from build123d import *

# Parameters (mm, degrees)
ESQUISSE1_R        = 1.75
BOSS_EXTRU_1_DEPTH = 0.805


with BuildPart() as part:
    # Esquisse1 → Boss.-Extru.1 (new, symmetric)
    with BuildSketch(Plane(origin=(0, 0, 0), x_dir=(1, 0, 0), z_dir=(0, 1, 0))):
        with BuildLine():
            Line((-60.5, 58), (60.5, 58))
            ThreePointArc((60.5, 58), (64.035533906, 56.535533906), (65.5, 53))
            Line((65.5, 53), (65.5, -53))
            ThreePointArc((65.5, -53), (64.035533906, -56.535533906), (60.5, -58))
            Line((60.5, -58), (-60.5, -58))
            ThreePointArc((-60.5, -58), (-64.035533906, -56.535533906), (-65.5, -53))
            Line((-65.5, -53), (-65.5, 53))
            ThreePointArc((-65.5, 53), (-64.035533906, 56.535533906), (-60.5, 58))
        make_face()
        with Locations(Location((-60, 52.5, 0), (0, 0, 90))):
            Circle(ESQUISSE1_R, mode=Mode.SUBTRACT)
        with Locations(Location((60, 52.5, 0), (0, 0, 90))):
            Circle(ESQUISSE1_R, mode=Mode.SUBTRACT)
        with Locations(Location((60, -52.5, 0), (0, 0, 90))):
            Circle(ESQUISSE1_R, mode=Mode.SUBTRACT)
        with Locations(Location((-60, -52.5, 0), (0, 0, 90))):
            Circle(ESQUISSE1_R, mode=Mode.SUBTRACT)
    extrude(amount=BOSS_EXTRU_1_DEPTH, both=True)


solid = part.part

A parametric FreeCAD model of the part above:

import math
import FreeCAD as App
import Part
import Sketcher

V = App.Vector
Q = App.Units.Quantity

doc = App.newDocument("Part")
params = doc.addObject("Spreadsheet::Sheet", "Params")
for row, (alias, value) in enumerate([
    ("sketch1_radius", "5 mm"),
    ("sketch1_diameter", "3.5 mm"),
    ("sketch1_width", "121 mm"),
    ("sketch1_height", "106 mm"),
    ("pad1_length", "1.61 mm"),
], start=1):
    params.set(f"A{row}", alias)
    params.set(f"B{row}", "=" + value)
    params.setAlias(f"B{row}", alias)

body = doc.addObject("PartDesign::Body", "Body")

sketch1 = body.newObject("Sketcher::SketchObject", "Sketch")
sketch1.AttachmentSupport = (doc.getObject("XZ_Plane"), [""])
sketch1.MapMode = "FlatFace"
sketch1.addGeometry([
    Part.LineSegment(V(60.5, -58, 0), V(-60.5, -58, 0)),
    Part.ArcOfCircle(Part.Circle(V(-60.5, -53, 0), V(0, 0, 1), 5), math.radians(180), math.radians(270)),
    Part.LineSegment(V(-65.5, -53, 0), V(-65.5, 53, 0)),
    Part.ArcOfCircle(Part.Circle(V(-60.5, 53, 0), V(0, 0, 1), 5), math.radians(90), math.radians(180)),
    Part.LineSegment(V(-60.5, 58, 0), V(60.5, 58, 0)),
    Part.ArcOfCircle(Part.Circle(V(60.5, 53, 0), V(0, 0, 1), 5), math.radians(0), math.radians(90)),
    Part.LineSegment(V(65.5, 53, 0), V(65.5, -53, 0)),
    Part.ArcOfCircle(Part.Circle(V(60.5, -53, 0), V(0, 0, 1), 5), math.radians(-90), math.radians(0)),
    Part.Circle(V(60, 52.5, 0), V(0, 0, 1), 1.8),
    Part.Circle(V(-60, 52.5, 0), V(0, 0, 1), 1.8),
    Part.Circle(V(60, -52.5, 0), V(0, 0, 1), 1.8),
    Part.Circle(V(-60, -52.5, 0), V(0, 0, 1), 1.8),
], False)
sketch1.addConstraint([
    Sketcher.Constraint("Tangent", 0, 2, 1, 2),
    Sketcher.Constraint("Tangent", 1, 1, 2, 1),
    Sketcher.Constraint("Tangent", 2, 2, 3, 2),
    Sketcher.Constraint("Tangent", 3, 1, 4, 1),
    Sketcher.Constraint("Tangent", 4, 2, 5, 2),
    Sketcher.Constraint("Tangent", 5, 1, 6, 1),
    Sketcher.Constraint("Tangent", 6, 2, 7, 2),
    Sketcher.Constraint("Tangent", 7, 1, 0, 1),
    Sketcher.Constraint("Horizontal", 0),
    Sketcher.Constraint("Vertical", 2),
    Sketcher.Constraint("Horizontal", 4),
    Sketcher.Constraint("Vertical", 6),
    Sketcher.Constraint("Equal", 1, 3),
    Sketcher.Constraint("Equal", 3, 5),
    Sketcher.Constraint("Equal", 5, 7),
    Sketcher.Constraint("Equal", 8, 9),
    Sketcher.Constraint("Equal", 9, 10),
    Sketcher.Constraint("Equal", 10, 11),
    Sketcher.Constraint("Symmetric", 1, 3, 5, 3, -1, 1),
    Sketcher.Constraint("Symmetric", 9, 3, 10, 3, -1, 1),
    Sketcher.Constraint("Symmetric", 8, 3, 11, 3, -1, 1),
    Sketcher.Constraint("Symmetric", 8, 3, 9, 3, -2),
    Sketcher.Constraint("Radius", 1, Q("5 mm")),
    Sketcher.Constraint("Diameter", 8, Q("3.5 mm")),
    Sketcher.Constraint("DistanceX", 0, 2, 0, 1, Q("121 mm")),
    Sketcher.Constraint("DistanceY", 2, 1, 2, 2, Q("106 mm")),
    Sketcher.Constraint("DistanceX", -1, 1, 8, 3, Q("60 mm")),
    Sketcher.Constraint("DistanceY", 10, 3, 8, 3, Q("105 mm")),
])
sketch1.setExpression("Constraints[22]", "Params.sketch1_radius")
sketch1.setExpression("Constraints[23]", "Params.sketch1_diameter")
sketch1.setExpression("Constraints[24]", "Params.sketch1_width")
sketch1.setExpression("Constraints[25]", "Params.sketch1_height")
pad1 = body.newObject("PartDesign::Pad", "Pad")
pad1.Profile = sketch1
pad1.setExpression("Length", "Params.pad1_length")
pad1.Midplane = True

doc.recompute()
